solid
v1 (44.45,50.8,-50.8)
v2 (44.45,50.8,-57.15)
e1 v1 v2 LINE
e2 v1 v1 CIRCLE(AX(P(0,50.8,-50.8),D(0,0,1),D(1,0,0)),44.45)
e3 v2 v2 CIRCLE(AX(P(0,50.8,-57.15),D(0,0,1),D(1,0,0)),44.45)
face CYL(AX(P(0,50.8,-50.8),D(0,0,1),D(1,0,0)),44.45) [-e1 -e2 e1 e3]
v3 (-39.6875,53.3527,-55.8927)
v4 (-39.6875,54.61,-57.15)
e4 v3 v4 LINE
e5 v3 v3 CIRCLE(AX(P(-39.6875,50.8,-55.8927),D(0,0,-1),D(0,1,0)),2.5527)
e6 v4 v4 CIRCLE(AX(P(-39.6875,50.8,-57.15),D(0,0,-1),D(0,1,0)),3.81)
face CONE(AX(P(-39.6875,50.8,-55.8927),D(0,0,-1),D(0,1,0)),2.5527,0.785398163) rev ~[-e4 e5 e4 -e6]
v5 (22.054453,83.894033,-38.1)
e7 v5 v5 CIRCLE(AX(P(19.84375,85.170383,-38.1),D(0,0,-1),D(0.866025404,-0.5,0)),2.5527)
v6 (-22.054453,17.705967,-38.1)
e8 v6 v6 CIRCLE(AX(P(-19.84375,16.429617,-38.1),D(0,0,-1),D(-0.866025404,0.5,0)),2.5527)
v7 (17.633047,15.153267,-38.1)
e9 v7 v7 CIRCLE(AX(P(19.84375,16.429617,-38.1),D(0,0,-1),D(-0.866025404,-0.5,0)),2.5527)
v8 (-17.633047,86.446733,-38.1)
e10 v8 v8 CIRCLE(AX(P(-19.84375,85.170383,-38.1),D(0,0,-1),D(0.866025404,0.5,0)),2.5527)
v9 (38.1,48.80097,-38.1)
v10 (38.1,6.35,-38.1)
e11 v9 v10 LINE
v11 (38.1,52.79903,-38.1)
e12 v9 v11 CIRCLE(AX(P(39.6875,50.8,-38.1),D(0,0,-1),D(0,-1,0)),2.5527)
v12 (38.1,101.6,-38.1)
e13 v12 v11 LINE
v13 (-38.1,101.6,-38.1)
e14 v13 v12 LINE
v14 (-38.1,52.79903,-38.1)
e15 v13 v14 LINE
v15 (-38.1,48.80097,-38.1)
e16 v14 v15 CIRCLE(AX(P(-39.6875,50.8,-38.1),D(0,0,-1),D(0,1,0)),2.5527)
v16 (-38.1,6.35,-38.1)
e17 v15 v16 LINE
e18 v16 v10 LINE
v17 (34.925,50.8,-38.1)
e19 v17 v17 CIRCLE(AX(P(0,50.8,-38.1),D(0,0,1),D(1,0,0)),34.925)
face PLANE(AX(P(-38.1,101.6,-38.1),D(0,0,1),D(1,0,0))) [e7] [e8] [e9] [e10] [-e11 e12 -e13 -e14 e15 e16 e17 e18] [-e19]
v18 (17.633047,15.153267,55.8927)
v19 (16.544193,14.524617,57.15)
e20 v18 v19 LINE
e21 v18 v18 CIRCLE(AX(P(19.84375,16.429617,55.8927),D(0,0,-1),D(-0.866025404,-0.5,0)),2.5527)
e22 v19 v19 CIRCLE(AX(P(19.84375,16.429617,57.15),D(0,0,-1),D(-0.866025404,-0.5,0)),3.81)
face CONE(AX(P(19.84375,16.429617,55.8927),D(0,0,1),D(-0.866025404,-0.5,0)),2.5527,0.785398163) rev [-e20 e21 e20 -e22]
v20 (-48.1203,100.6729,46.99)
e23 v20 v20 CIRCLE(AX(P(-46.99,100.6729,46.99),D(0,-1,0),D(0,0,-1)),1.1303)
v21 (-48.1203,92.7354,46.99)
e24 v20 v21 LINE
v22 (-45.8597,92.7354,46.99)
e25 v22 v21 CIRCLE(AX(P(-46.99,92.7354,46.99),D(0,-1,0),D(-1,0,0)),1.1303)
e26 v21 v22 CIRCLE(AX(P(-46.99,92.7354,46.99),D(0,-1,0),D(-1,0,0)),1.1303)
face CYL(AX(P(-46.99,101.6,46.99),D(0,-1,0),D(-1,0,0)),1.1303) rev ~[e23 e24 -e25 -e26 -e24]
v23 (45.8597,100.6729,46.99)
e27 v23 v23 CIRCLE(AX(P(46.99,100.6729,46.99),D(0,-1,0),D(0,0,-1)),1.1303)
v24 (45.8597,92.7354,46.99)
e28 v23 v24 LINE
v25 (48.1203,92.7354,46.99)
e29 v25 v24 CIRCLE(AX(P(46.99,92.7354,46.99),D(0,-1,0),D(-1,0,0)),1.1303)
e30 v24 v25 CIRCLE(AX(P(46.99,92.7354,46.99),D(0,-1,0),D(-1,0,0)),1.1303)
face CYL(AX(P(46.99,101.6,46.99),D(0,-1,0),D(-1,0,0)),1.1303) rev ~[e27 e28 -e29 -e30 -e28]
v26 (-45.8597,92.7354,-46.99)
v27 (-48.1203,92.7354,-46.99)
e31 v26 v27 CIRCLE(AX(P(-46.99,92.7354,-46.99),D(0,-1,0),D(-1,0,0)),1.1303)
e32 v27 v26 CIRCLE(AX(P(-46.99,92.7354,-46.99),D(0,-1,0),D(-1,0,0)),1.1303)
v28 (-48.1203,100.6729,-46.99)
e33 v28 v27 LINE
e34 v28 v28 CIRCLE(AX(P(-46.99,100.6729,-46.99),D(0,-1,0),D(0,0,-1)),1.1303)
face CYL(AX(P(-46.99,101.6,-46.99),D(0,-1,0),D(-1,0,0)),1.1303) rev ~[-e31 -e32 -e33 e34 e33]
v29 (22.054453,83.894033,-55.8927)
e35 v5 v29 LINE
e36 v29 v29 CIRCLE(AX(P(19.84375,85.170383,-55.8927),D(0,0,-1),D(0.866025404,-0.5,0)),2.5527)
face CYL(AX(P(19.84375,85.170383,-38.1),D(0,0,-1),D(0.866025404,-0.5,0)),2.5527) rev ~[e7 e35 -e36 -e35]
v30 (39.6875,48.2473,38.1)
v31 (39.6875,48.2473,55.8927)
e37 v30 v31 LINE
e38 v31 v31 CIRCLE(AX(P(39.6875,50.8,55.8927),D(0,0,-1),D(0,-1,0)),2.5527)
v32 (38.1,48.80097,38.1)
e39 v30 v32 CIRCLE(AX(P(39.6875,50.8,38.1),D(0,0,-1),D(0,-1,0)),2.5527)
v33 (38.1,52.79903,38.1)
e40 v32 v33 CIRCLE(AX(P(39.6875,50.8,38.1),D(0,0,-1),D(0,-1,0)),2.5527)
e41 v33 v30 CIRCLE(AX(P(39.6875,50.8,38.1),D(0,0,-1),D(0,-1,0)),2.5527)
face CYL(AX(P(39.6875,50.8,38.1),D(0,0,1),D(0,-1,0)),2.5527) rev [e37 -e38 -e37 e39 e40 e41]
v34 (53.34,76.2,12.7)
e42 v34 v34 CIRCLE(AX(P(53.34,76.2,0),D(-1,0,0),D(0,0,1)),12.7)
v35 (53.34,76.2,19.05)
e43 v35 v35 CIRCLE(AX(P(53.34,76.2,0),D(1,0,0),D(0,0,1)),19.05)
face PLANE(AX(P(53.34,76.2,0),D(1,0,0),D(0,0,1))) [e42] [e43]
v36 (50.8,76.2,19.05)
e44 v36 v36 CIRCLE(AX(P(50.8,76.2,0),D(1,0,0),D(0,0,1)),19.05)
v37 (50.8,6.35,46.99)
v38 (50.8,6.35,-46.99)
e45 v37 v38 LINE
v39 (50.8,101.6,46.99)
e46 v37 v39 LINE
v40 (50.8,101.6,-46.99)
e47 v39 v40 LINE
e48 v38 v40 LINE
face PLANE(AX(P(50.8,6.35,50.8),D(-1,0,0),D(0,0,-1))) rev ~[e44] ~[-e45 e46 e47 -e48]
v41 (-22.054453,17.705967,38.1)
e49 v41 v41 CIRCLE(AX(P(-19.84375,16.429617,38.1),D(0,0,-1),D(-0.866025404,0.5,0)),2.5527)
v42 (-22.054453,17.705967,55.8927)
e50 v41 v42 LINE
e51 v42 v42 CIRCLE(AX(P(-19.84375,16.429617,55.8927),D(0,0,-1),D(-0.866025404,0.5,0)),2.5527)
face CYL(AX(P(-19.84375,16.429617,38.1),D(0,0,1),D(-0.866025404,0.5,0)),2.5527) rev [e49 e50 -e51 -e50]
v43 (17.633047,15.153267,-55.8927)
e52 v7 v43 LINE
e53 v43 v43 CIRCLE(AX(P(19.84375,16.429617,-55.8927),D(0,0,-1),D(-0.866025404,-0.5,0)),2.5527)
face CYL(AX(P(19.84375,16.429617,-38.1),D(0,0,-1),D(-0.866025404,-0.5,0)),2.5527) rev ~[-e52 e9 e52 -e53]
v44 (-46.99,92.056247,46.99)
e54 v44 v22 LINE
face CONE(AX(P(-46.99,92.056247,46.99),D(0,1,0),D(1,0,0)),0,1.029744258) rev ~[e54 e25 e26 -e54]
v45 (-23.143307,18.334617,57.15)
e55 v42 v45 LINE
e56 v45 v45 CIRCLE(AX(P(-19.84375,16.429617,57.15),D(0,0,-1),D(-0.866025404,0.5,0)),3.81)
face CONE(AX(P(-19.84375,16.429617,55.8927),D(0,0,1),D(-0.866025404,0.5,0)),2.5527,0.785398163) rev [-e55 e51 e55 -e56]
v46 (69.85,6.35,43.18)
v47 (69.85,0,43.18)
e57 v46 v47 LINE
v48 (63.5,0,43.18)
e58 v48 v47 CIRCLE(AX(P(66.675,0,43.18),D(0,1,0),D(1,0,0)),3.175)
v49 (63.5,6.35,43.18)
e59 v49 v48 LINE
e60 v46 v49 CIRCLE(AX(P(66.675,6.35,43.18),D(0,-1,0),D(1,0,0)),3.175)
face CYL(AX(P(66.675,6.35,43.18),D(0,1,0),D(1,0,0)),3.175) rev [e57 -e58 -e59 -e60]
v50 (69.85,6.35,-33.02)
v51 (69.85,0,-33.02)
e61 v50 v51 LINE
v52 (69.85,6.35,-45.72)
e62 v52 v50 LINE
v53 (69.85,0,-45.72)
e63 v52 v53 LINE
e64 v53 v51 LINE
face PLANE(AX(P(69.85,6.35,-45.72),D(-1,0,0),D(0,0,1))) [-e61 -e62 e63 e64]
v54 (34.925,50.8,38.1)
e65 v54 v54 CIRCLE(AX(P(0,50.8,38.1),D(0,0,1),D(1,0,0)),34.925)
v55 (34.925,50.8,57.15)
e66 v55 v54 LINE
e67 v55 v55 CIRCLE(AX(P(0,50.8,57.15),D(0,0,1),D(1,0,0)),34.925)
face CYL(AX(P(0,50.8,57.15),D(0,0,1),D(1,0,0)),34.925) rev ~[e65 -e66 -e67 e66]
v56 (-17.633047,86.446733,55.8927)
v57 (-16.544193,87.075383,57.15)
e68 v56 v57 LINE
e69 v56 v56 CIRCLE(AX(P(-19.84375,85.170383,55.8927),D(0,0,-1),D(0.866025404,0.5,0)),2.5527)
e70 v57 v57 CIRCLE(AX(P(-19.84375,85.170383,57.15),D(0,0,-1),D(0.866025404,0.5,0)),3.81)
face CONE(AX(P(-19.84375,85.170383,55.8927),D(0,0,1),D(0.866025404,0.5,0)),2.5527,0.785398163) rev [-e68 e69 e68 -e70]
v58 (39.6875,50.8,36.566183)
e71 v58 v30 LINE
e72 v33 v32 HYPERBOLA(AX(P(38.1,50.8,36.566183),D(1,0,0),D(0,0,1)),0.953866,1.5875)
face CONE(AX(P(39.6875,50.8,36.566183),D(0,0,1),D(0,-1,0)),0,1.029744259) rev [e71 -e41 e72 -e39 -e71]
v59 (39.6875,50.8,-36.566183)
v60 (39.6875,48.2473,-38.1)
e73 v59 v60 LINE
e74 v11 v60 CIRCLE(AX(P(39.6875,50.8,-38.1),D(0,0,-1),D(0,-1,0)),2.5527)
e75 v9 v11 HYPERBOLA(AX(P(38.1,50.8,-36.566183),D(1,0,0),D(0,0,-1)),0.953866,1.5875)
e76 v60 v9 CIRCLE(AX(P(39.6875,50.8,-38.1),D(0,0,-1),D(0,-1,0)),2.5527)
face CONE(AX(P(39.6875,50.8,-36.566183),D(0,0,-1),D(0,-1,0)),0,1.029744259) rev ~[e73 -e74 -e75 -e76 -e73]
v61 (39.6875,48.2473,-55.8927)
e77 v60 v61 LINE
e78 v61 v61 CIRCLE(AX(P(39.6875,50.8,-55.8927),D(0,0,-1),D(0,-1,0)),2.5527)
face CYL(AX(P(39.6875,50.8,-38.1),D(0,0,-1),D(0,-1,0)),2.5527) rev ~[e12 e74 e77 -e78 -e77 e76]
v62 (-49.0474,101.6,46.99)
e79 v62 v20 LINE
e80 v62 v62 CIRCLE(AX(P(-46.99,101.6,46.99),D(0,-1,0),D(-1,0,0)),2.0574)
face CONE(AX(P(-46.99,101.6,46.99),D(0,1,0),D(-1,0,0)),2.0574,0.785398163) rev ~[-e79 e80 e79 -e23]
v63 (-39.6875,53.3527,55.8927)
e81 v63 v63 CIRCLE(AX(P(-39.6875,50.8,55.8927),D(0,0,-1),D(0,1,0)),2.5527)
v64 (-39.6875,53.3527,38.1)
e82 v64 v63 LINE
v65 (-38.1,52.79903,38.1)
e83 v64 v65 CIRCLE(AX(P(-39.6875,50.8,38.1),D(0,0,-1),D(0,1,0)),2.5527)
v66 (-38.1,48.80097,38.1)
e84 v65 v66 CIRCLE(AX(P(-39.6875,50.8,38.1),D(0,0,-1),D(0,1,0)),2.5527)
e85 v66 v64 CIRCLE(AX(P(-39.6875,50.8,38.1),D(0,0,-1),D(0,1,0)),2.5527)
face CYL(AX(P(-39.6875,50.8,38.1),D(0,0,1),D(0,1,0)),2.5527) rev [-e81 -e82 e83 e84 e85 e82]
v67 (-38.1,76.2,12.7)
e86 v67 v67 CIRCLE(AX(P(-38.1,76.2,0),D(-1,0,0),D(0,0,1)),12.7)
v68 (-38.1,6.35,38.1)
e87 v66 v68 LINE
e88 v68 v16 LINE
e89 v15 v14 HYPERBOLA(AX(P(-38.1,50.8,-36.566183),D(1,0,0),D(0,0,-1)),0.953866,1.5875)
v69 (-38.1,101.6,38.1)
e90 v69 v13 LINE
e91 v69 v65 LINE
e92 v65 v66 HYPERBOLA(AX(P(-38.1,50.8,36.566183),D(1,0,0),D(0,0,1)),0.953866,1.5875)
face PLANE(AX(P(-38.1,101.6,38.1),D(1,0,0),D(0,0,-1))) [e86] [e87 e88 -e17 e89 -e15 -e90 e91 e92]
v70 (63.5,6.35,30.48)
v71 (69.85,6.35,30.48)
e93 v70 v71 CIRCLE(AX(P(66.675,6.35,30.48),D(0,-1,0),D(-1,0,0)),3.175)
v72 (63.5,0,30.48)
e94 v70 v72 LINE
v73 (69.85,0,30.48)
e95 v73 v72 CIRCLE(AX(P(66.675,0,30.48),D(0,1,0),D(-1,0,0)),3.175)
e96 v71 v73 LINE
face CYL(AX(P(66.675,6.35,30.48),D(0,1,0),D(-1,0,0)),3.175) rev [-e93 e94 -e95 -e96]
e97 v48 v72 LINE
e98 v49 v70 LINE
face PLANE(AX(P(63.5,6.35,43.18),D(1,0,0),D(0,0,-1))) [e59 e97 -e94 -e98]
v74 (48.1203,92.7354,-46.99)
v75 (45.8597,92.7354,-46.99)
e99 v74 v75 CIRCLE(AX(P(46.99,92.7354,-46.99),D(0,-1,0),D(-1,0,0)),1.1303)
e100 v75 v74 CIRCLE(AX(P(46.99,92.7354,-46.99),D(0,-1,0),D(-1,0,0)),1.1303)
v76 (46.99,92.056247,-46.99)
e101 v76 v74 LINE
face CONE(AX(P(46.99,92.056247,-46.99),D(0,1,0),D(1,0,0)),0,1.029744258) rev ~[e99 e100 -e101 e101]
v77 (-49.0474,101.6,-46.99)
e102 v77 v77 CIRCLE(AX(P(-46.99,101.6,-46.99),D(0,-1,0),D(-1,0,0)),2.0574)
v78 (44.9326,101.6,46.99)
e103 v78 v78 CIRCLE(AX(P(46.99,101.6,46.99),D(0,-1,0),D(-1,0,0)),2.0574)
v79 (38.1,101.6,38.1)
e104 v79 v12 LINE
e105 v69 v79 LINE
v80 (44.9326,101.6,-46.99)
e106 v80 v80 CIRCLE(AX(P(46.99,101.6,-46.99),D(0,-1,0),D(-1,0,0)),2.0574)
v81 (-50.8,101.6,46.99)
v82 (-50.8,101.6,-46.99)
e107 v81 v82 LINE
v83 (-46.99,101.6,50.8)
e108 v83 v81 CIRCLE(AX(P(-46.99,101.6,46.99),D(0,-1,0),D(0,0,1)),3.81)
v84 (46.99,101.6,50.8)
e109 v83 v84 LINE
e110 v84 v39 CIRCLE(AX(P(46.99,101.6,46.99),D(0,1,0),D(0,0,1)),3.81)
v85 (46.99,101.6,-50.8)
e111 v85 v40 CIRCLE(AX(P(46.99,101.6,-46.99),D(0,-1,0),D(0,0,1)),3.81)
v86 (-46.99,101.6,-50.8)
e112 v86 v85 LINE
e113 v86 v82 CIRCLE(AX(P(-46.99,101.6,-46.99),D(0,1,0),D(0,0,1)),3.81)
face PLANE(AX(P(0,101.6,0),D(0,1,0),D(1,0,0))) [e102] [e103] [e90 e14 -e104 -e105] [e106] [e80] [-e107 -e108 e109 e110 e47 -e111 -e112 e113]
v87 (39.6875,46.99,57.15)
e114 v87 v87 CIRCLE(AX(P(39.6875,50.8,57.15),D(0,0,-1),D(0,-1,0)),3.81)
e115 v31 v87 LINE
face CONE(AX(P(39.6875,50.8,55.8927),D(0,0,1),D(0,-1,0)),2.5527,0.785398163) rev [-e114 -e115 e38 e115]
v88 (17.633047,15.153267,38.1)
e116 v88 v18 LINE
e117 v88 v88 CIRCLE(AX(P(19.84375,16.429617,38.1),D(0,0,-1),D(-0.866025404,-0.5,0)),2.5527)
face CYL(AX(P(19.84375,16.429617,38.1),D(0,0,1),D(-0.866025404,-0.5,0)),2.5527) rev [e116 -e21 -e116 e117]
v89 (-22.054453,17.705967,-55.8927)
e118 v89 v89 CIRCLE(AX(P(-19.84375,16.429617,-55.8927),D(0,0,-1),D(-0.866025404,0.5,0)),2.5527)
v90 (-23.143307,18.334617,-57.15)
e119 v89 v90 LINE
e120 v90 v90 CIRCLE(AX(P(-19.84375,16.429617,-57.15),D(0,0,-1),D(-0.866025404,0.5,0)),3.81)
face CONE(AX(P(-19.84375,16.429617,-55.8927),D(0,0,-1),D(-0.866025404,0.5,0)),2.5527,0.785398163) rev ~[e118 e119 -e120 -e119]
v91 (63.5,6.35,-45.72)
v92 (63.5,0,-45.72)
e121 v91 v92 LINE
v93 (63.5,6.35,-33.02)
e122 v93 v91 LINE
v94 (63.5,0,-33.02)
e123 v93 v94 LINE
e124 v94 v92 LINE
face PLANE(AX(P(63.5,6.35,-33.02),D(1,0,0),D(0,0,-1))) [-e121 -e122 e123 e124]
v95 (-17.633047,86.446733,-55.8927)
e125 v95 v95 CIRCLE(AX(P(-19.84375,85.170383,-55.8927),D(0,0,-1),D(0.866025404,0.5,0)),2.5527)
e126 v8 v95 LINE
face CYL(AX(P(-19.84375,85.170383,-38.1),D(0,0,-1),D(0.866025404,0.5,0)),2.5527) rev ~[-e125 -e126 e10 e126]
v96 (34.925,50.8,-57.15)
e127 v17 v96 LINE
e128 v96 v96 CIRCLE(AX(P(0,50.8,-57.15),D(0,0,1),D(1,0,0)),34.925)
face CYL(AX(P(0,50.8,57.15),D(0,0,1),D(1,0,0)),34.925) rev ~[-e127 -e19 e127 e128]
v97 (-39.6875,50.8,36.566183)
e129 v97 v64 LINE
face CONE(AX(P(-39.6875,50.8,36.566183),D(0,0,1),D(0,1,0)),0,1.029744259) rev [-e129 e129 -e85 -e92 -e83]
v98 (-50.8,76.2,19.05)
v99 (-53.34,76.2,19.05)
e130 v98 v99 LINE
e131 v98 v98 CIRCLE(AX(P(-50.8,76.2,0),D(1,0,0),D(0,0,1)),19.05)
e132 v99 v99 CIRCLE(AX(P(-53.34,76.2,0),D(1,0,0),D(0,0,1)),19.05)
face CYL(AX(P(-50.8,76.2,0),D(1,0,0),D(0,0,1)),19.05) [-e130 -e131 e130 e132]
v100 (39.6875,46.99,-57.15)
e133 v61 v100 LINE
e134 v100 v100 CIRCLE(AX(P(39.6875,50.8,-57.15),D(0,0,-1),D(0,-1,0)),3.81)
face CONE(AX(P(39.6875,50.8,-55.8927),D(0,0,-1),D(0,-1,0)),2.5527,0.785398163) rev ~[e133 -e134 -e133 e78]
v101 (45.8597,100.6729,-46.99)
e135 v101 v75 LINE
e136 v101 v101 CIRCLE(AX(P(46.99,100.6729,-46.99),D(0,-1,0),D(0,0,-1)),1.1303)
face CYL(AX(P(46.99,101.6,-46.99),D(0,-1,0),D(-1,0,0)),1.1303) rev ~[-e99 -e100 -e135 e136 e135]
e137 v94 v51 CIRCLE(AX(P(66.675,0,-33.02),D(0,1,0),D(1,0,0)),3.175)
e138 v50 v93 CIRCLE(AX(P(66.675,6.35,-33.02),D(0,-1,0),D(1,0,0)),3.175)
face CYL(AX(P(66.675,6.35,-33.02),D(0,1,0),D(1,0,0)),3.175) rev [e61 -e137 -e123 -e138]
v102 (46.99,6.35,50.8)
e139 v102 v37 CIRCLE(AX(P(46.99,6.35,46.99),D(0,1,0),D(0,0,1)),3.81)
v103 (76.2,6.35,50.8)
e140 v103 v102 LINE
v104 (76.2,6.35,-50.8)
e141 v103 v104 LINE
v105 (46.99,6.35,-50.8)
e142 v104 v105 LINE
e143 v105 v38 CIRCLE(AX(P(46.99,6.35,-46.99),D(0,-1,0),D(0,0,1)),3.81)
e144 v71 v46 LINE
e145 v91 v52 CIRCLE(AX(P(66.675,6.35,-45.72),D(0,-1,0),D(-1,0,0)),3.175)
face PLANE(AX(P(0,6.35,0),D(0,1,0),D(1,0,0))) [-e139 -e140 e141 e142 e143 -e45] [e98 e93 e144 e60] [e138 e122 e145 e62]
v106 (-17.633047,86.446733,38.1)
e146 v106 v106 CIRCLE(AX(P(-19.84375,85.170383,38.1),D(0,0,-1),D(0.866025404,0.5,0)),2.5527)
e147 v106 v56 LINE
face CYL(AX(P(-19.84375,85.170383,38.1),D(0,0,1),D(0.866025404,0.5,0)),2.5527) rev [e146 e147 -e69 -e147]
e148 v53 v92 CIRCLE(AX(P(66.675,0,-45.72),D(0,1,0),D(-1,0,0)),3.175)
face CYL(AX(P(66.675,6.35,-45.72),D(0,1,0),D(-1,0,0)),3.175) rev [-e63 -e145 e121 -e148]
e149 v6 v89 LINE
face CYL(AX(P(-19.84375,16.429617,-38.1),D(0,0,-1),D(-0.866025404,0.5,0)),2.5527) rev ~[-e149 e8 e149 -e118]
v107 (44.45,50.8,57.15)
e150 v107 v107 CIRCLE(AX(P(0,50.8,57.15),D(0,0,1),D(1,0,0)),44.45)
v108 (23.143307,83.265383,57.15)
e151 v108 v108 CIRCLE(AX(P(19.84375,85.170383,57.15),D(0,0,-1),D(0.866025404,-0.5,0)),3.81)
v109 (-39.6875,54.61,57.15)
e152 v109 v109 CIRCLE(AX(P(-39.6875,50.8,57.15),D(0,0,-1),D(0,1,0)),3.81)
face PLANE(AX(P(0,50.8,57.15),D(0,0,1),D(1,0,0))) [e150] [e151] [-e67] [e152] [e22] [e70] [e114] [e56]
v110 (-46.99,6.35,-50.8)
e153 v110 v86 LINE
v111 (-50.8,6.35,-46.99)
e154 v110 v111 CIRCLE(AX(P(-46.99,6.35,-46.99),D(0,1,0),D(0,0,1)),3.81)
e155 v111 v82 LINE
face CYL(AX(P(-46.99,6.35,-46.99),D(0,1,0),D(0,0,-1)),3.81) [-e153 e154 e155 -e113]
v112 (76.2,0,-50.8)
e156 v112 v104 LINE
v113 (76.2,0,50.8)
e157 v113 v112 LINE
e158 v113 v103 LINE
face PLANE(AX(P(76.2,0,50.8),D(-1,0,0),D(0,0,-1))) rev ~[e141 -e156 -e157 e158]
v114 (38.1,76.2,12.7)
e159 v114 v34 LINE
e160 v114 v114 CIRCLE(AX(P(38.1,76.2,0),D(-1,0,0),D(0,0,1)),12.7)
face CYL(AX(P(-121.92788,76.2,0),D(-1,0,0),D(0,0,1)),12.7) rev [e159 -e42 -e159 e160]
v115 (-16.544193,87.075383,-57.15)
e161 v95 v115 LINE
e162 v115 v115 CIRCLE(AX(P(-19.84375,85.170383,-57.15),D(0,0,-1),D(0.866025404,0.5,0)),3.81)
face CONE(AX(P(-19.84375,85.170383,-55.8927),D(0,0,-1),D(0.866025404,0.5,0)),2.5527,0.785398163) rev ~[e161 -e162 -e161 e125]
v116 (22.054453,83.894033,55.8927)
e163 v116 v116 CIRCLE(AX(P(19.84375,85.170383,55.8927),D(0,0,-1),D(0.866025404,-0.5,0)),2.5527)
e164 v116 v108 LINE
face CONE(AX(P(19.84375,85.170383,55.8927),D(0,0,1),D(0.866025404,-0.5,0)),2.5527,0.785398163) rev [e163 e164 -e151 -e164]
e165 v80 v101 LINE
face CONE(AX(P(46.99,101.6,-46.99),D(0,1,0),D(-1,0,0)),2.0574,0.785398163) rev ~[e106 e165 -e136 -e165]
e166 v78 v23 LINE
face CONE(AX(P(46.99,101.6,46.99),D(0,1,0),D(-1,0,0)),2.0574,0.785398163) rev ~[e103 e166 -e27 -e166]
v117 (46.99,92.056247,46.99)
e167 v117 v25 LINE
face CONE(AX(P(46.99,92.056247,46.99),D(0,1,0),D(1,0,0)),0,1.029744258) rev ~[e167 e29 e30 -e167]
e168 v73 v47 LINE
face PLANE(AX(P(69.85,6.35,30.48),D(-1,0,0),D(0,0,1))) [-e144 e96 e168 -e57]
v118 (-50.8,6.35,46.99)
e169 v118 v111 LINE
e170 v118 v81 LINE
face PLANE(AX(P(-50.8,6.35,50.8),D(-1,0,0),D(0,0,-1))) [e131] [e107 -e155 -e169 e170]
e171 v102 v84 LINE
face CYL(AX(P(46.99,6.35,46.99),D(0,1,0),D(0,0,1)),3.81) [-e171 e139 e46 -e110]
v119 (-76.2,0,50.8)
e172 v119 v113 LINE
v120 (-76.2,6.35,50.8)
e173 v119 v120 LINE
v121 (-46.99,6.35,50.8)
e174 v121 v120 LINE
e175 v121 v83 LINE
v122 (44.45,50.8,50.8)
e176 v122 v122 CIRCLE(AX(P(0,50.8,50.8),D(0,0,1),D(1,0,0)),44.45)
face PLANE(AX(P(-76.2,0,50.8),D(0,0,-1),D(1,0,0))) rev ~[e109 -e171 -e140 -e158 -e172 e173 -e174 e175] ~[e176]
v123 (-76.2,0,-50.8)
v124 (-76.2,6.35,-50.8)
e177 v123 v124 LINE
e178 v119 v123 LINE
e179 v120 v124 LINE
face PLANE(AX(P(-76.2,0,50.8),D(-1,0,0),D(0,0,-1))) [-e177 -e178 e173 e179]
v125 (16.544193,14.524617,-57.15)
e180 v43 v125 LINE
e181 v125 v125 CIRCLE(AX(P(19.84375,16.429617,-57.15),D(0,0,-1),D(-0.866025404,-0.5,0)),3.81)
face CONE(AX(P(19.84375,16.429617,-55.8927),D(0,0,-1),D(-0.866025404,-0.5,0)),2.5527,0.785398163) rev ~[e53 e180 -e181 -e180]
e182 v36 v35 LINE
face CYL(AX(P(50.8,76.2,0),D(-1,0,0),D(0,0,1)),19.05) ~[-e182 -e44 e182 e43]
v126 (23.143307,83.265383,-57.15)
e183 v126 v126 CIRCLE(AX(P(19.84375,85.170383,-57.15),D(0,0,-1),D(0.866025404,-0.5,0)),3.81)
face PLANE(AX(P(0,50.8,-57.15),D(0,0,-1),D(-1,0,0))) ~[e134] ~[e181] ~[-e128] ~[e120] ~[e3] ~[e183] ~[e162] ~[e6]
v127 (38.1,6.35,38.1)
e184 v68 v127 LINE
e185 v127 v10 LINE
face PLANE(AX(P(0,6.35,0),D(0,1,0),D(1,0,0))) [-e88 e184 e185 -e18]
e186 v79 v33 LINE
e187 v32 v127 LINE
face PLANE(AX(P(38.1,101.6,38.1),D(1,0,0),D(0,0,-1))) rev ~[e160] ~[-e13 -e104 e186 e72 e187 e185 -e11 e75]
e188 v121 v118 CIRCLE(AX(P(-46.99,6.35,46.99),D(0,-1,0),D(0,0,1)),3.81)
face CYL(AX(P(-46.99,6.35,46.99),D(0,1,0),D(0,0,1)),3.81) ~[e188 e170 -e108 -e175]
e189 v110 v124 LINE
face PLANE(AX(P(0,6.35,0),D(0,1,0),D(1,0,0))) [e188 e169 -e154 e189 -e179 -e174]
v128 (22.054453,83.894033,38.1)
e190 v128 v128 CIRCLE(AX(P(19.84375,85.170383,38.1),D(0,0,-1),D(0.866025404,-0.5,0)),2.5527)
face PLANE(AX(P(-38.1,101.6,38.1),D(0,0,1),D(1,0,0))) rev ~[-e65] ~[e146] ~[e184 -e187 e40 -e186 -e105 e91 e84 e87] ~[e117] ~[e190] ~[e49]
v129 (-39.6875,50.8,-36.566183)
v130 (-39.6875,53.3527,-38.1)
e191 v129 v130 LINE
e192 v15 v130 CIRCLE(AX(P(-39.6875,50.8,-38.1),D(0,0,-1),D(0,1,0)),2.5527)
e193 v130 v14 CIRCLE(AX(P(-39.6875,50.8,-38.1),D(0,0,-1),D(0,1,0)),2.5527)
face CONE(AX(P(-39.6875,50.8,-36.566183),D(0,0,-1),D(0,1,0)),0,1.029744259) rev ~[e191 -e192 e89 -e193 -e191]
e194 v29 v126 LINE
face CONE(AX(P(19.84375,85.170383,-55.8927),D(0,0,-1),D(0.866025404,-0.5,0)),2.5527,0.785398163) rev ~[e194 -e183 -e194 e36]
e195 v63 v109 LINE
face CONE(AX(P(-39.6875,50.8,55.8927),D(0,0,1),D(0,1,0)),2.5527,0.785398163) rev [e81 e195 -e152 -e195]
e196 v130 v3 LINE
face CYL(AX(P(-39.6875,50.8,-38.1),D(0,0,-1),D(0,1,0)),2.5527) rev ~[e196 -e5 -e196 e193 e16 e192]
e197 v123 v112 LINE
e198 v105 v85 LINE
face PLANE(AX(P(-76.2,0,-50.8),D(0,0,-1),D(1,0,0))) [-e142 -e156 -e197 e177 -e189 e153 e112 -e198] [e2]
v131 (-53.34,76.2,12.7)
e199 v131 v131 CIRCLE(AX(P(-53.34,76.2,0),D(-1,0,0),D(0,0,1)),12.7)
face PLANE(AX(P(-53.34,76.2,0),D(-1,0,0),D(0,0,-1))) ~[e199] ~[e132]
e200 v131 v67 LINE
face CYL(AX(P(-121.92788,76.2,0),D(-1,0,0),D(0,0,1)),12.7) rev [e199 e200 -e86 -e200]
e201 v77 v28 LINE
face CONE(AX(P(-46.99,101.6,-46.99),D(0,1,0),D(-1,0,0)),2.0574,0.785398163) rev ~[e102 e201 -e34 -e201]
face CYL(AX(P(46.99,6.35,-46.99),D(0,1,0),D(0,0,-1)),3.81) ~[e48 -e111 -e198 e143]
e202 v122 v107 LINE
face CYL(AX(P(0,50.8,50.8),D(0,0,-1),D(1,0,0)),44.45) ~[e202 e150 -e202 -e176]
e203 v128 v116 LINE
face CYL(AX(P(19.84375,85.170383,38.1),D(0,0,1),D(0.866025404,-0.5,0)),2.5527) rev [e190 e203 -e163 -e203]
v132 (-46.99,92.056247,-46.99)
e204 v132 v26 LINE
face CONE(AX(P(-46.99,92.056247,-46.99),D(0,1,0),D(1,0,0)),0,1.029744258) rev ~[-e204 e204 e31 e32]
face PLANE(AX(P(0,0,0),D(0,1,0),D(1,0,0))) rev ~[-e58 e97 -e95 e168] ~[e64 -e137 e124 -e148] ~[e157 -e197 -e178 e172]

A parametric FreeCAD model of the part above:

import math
import FreeCAD as App
import Part
import Sketcher

V = App.Vector
Q = App.Units.Quantity


def edges_at(feature, points):
    """Names of the edges that pass closest to the given points."""
    edges = feature.Shape.Edges
    near = lambda p: min(range(len(edges)), key=lambda i: edges[i].distToShape(Part.Vertex(*p))[0])
    return sorted({f"Edge{near(p) + 1}" for p in points})

doc = App.newDocument("Part")
body = doc.addObject("PartDesign::Body", "Body")

# Sketch on XZ plane
sketch1 = body.newObject("Sketcher::SketchObject", "Sketch")
sketch1.AttachmentSupport = (doc.getObject("XZ_Plane"), [""])
sketch1.MapMode = "FlatFace"
sketch1.addGeometry(Part.LineSegment(V(-76.2, -50.8, 0), V(-76.2, 50.8, 0)), False)
sketch1.addGeometry(Part.LineSegment(V(-76.2, 50.8, 0), V(76.2, 50.8, 0)), False)
sketch1.addGeometry(Part.LineSegment(V(76.2, 50.8, 0), V(76.2, -50.8, 0)), False)
sketch1.addGeometry(Part.LineSegment(V(76.2, -50.8, 0), V(-76.2, -50.8, 0)), False)
sketch1.addConstraint(Sketcher.Constraint("Coincident", 0, 2, 1, 1))
sketch1.addConstraint(Sketcher.Constraint("Coincident", 1, 2, 2, 1))
sketch1.addConstraint(Sketcher.Constraint("Coincident", 2, 2, 3, 1))
sketch1.addConstraint(Sketcher.Constraint("Coincident", 3, 2, 0, 1))
sketch1.addConstraint(Sketcher.Constraint("Vertical", 0))
sketch1.addConstraint(Sketcher.Constraint("Horizontal", 1))
sketch1.addConstraint(Sketcher.Constraint("Vertical", 2))
sketch1.addConstraint(Sketcher.Constraint("Horizontal", 3))
sketch1.addConstraint(Sketcher.Constraint("Symmetric", 0, 2, 2, 2, -1, 1))
sketch1.addConstraint(Sketcher.Constraint("DistanceX", 1, 1, 1, 2, Q("6 in")))
sketch1.addConstraint(Sketcher.Constraint("DistanceY", 0, 1, 0, 2, Q("4 in")))
pad1 = body.newObject("PartDesign::Pad", "Pad")
pad1.Profile = sketch1
pad1.Length = Q("0.25 in")
pad1.Reversed = True

# Sketch on XZ plane
sketch2 = body.newObject("Sketcher::SketchObject", "Sketch001")
sketch2.AttachmentSupport = (doc.getObject("XZ_Plane"), [""])
sketch2.MapMode = "FlatFace"
sketch2.AttachmentOffset = App.Placement(V(0, 0, -0.25 * 25.4), App.Rotation())
sketch2.addGeometry(Part.LineSegment(V(-50.8, -50.8, 0), V(-50.8, 50.8, 0)), False)
sketch2.addGeometry(Part.LineSegment(V(-50.8, 50.8, 0), V(50.8, 50.8, 0)), False)
sketch2.addGeometry(Part.LineSegment(V(50.8, 50.8, 0), V(50.8, -50.8, 0)), False)
sketch2.addGeometry(Part.LineSegment(V(50.8, -50.8, 0), V(-50.8, -50.8, 0)), False)
sketch2.addConstraint(Sketcher.Constraint("Coincident", 0, 2, 1, 1))
sketch2.addConstraint(Sketcher.Constraint("Coincident", 1, 2, 2, 1))
sketch2.addConstraint(Sketcher.Constraint("Coincident", 2, 2, 3, 1))
sketch2.addConstraint(Sketcher.Constraint("Coincident", 3, 2, 0, 1))
sketch2.addConstraint(Sketcher.Constraint("Vertical", 0))
sketch2.addConstraint(Sketcher.Constraint("Horizontal", 1))
sketch2.addConstraint(Sketcher.Constraint("Vertical", 2))
sketch2.addConstraint(Sketcher.Constraint("Horizontal", 3))
sketch2.addConstraint(Sketcher.Constraint("Symmetric", 0, 2, 2, 2, -1, 1))
sketch2.addConstraint(Sketcher.Constraint("Equal", 3, 0))
sketch2.addConstraint(Sketcher.Constraint("DistanceX", 1, 1, 1, 2, Q("4 in")))
pad2 = body.newObject("PartDesign::Pad", "Pad001")
pad2.Profile = sketch2
pad2.Length = Q("3.75 in")
pad2.Reversed = True

# Sketch on XZ plane
sketch3 = body.newObject("Sketcher::SketchObject", "Sketch002")
sketch3.AttachmentSupport = (doc.getObject("XZ_Plane"), [""])
sketch3.MapMode = "FlatFace"
sketch3.AttachmentOffset = App.Placement(V(0, 0, -4 * 25.4), App.Rotation())
sketch3.addGeometry(Part.LineSegment(V(-38.1, -38.1, 0), V(-38.1, 38.1, 0)), False)
sketch3.addGeometry(Part.LineSegment(V(-38.1, 38.1, 0), V(38.1, 38.1, 0)), False)
sketch3.addGeometry(Part.LineSegment(V(38.1, 38.1, 0), V(38.1, -38.1, 0)), False)
sketch3.addGeometry(Part.LineSegment(V(38.1, -38.1, 0), V(-38.1, -38.1, 0)), False)
sketch3.addConstraint(Sketcher.Constraint("Coincident", 0, 2, 1, 1))
sketch3.addConstraint(Sketcher.Constraint("Coincident", 1, 2, 2, 1))
sketch3.addConstraint(Sketcher.Constraint("Coincident", 2, 2, 3, 1))
sketch3.addConstraint(Sketcher.Constraint("Coincident", 3, 2, 0, 1))
sketch3.addConstraint(Sketcher.Constraint("Vertical", 0))
sketch3.addConstraint(Sketcher.Constraint("Horizontal", 1))
sketch3.addConstraint(Sketcher.Constraint("Vertical", 2))
sketch3.addConstraint(Sketcher.Constraint("Horizontal", 3))
sketch3.addConstraint(Sketcher.Constraint("Symmetric", 0, 2, 2, 2, -1, 1))
sketch3.addConstraint(Sketcher.Constraint("Equal", 3, 0))
sketch3.addConstraint(Sketcher.Constraint("DistanceX", 1, 1, 1, 2, Q("3 in")))
pocket1 = body.newObject("PartDesign::Pocket", "Pocket")
pocket1.Profile = sketch3
pocket1.Length = Q("3.75 in")
pocket1.Reversed = True

# Sketch on XY plane
sketch4 = body.newObject("Sketcher::SketchObject", "Sketch003")
sketch4.AttachmentSupport = (doc.getObject("XY_Plane"), [""])
sketch4.MapMode = "FlatFace"
sketch4.AttachmentOffset = App.Placement(V(0, 0, 2 * 25.4), App.Rotation())
sketch4.addGeometry(Part.Circle(V(0, 50.8, 0), V(0, 0, 1), 44.45), False)
sketch4.addConstraint(Sketcher.Constraint("PointOnObject", 0, 3, -2))
sketch4.addConstraint(Sketcher.Constraint("Diameter", 0, Q("3.5 in")))
sketch4.addConstraint(Sketcher.Constraint("DistanceY", -1, 1, 0, 3, Q("2 in")))
pad3 = body.newObject("PartDesign::Pad", "Pad002")
pad3.Profile = sketch4
pad3.Length = Q("0.25 in")
doc.recompute()

mirrored = body.newObject("PartDesign::Mirrored", "Mirrored")
mirrored.Originals = [pad3]
mirrored.MirrorPlane = (doc.getObject("XY_Plane"), [""])
body.Tip = mirrored

# Sketch on XY plane
sketch5 = body.newObject("Sketcher::SketchObject", "Sketch004")
sketch5.AttachmentSupport = (doc.getObject("XY_Plane"), [""])
sketch5.MapMode = "FlatFace"
sketch5.AttachmentOffset = App.Placement(V(0, 0, 2.25 * 25.4), App.Rotation())
sketch5.addGeometry(Part.Circle(V(0, 50.8, 0), V(0, 0, 1), 34.925), False)
sketch5.addConstraint(Sketcher.Constraint("PointOnObject", 0, 3, -2))
sketch5.addConstraint(Sketcher.Constraint("Diameter", 0, Q("2.75 in")))
sketch5.addConstraint(Sketcher.Constraint("DistanceY", -1, 1, 0, 3, Q("2 in")))
pocket2 = body.newObject("PartDesign::Pocket", "Pocket001")
pocket2.Profile = sketch5
pocket2.Type = "ThroughAll"

# Sketch on YZ plane
sketch6 = body.newObject("Sketcher::SketchObject", "Sketch005")
sketch6.AttachmentSupport = (doc.getObject("YZ_Plane"), [""])
sketch6.MapMode = "FlatFace"
sketch6.AttachmentOffset = App.Placement(V(0, 0, 1.5625 * 25.4), App.Rotation())
sketch6.addGeometry(Part.LineSegment(V(50.8, 36.566183, 0), V(50.8, 57.15, 0)), False)
sketch6.addGeometry(Part.LineSegment(V(50.8, 57.15, 0), V(46.99, 57.15, 0)), False)
sketch6.addGeometry(Part.LineSegment(V(46.99, 57.15, 0), V(48.2473, 55.8927, 0)), False)
sketch6.addGeometry(Part.LineSegment(V(48.2473, 55.8927, 0), V(48.2473, 38.1, 0)), False)
sketch6.addGeometry(Part.LineSegment(V(48.2473, 38.1, 0), V(50.8, 36.566183, 0)), False)
sketch6.addGeometry(Part.LineSegment(V(50.8, 57.15, 0), V(50.8, 36.566183, 0)), True)  # axis
sketch6.addConstraint(Sketcher.Constraint("Coincident", 0, 2, 1, 1))
sketch6.addConstraint(Sketcher.Constraint("Coincident", 1, 2, 2, 1))
sketch6.addConstraint(Sketcher.Constraint("Coincident", 2, 2, 3, 1))
sketch6.addConstraint(Sketcher.Constraint("Coincident", 3, 2, 4, 1))
sketch6.addConstraint(Sketcher.Constraint("Coincident", 4, 2, 0, 1))
sketch6.addConstraint(Sketcher.Constraint("Vertical", 0))
sketch6.addConstraint(Sketcher.Constraint("Horizontal", 1))
sketch6.addConstraint(Sketcher.Constraint("Vertical", 3))
sketch6.addConstraint(Sketcher.Constraint("Vertical", 5))
sketch6.addConstraint(Sketcher.Constraint("Coincident", 5, 1, 0, 2))
sketch6.addConstraint(Sketcher.Constraint("Equal", 0, 5))
sketch6.addConstraint(Sketcher.Constraint("DistanceX", -1, 1, 0, 2, Q("2 in")))
sketch6.addConstraint(Sketcher.Constraint("Angle", 2, Q("-45 deg")))
sketch6.addConstraint(Sketcher.Constraint("Angle", 4, Q("-31 deg")))
sketch6.addConstraint(Sketcher.Constraint("DistanceX", 1, 2, 1, 1, Q("0.15 in")))
sketch6.addConstraint(Sketcher.Constraint("DistanceY", -1, 1, 3, 2, Q("1.5 in")))
sketch6.addConstraint(Sketcher.Constraint("DistanceY", -1, 1, 0, 2, Q("2.25 in")))
sketch6.addConstraint(Sketcher.Constraint("DistanceY", 3, 2, 3, 1, Q("0.7005 in")))
groove = body.newObject("PartDesign::Groove", "Groove")
groove.Profile = sketch6
groove.ReferenceAxis = (sketch6, ["Axis0"])
groove.Angle = 360
doc.recompute()

datumline = body.newObject("PartDesign::Line", "DatumLine")
datumline.Placement = App.Placement(V(0, 50.8, 0), App.Rotation(V(0, 0, 1), V(0, 0, 1)))
polarpattern = body.newObject("PartDesign::PolarPattern", "PolarPattern")
polarpattern.Originals = [groove]
polarpattern.Axis = (datumline, [""])
polarpattern.Angle = 360
polarpattern.Occurrences = 6
body.Tip = polarpattern
doc.recompute()

fillet = body.newObject("PartDesign::Fillet", "Fillet")
fillet.Base = (polarpattern, edges_at(polarpattern, [
    (50.8, 53.975, 50.8),
    (50.8, 53.975, -50.8),
    (-50.8, 53.975, -50.8),
    (-50.8, 53.975, 50.8),
]))
fillet.Radius = Q("0.15 in")

# Sketch on XZ plane
sketch7 = body.newObject("Sketcher::SketchObject", "Sketch006")
sketch7.AttachmentSupport = (doc.getObject("XZ_Plane"), [""])
sketch7.MapMode = "FlatFace"
sketch7.AttachmentOffset = App.Placement(V(0, 0, -4 * 25.4), App.Rotation())
sketch7.addGeometry(Part.Circle(V(-46.99, -46.99, 0), V(0, 0, 1), 1.1303), False)
sketch7.addGeometry(Part.Circle(V(46.99, -46.99, 0), V(0, 0, 1), 1.1303), False)
sketch7.addGeometry(Part.Circle(V(46.99, 46.99, 0), V(0, 0, 1), 1.1303), False)
sketch7.addGeometry(Part.Circle(V(-46.99, 46.99, 0), V(0, 0, 1), 1.1303), False)
sketch7.addConstraint(Sketcher.Constraint("Equal", 0, 1))
sketch7.addConstraint(Sketcher.Constraint("Equal", 1, 2))
sketch7.addConstraint(Sketcher.Constraint("Equal", 2, 3))
sketch7.addConstraint(Sketcher.Constraint("Symmetric", 0, 3, 2, 3, -1, 1))
sketch7.addConstraint(Sketcher.Constraint("Symmetric", 1, 3, 3, 3, -1, 1))
sketch7.addConstraint(Sketcher.Constraint("Symmetric", 0, 3, 1, 3, -2))
sketch7.addConstraint(Sketcher.Constraint("Diameter", 0, Q("0.089 in")))
sketch7.addConstraint(Sketcher.Constraint("DistanceX", 0, 3, 1, 3, Q("3.7 in")))
sketch7.addConstraint(Sketcher.Constraint("DistanceY", 1, 3, 2, 3, Q("3.7 in")))
doc.recompute()
hole = body.newObject("PartDesign::Hole", "Hole")
hole.Profile = sketch7
hole.ThreadType = "None"
hole.Diameter = Q("0.089 in")
hole.DepthType = "Dimension"
hole.Depth = Q("0.349 in")
hole.DrillPoint = "Angled"
hole.DrillPointAngle = 118
hole.HoleCutType = "Countersink"
hole.HoleCutDiameter = Q("0.162 in")
hole.HoleCutCountersinkAngle = 90
hole.Reversed = True

# Sketch on YZ plane
sketch8 = body.newObject("Sketcher::SketchObject", "Sketch007")
sketch8.AttachmentSupport = (doc.getObject("YZ_Plane"), [""])
sketch8.MapMode = "FlatFace"
sketch8.AttachmentOffset = App.Placement(V(0, 0, 2 * 25.4), App.Rotation())
sketch8.addGeometry(Part.Circle(V(76.2, 0, 0), V(0, 0, 1), 19.05), False)
sketch8.addConstraint(Sketcher.Constraint("PointOnObject", 0, 3, -1))
sketch8.addConstraint(Sketcher.Constraint("Diameter", 0, Q("1.5 in")))
sketch8.addConstraint(Sketcher.Constraint("DistanceX", -1, 1, 0, 3, Q("3 in")))
pad4 = body.newObject("PartDesign::Pad", "Pad003")
pad4.Profile = sketch8
pad4.Length = Q("0.1 in")
doc.recompute()

mirrored2 = body.newObject("PartDesign::Mirrored", "Mirrored001")
mirrored2.Originals = [pad4]
mirrored2.MirrorPlane = (doc.getObject("YZ_Plane"), [""])
body.Tip = mirrored2

# Sketch on YZ plane
sketch9 = body.newObject("Sketcher::SketchObject", "Sketch008")
sketch9.AttachmentSupport = (doc.getObject("YZ_Plane"), [""])
sketch9.MapMode = "FlatFace"
sketch9.AttachmentOffset = App.Placement(V(0, 0, 2.1 * 25.4), App.Rotation())
sketch9.addGeometry(Part.Circle(V(76.2, 0, 0), V(0, 0, 1), 12.7), False)
sketch9.addConstraint(Sketcher.Constraint("PointOnObject", 0, 3, -1))
sketch9.addConstraint(Sketcher.Constraint("Diameter", 0, Q("1 in")))
sketch9.addConstraint(Sketcher.Constraint("DistanceX", -1, 1, 0, 3, Q("3 in")))
pocket3 = body.newObject("PartDesign::Pocket", "Pocket002")
pocket3.Profile = sketch9
pocket3.Type = "ThroughAll"
pocket3.Midplane = True
doc.recompute()

mirrored3 = body.newObject("PartDesign::Mirrored", "Mirrored002")
mirrored3.Originals = [groove]
mirrored3.MirrorPlane = (doc.getObject("XY_Plane"), [""])
body.Tip = mirrored3

# Sketch on an angled plane
sketch10 = body.newObject("Sketcher::SketchObject", "Sketch009")
sketch10.Placement = App.Placement(V(19.84375, 85.170383, -57.15), App.Rotation(V(0.866025404, -0.5, 0), V(0, 0, -1), V(0.5, 0.866025404, 0), "ZXY"))
sketch10.addGeometry(Part.LineSegment(V(0, 0, 0), V(0, -20.583817, 0)), False)
sketch10.addGeometry(Part.LineSegment(V(0, -20.583817, 0), V(2.5527, -19.05, 0)), False)
sketch10.addGeometry(Part.LineSegment(V(2.5527, -19.05, 0), V(2.5527, -1.2573, 0)), False)
sketch10.addGeometry(Part.LineSegment(V(2.5527, -1.2573, 0), V(3.81, 0, 0)), False)
sketch10.addGeometry(Part.LineSegment(V(3.81, 0, 0), V(0, 0, 0)), False)
sketch10.addConstraint(Sketcher.Constraint("Coincident", 0, 2, 1, 1))
sketch10.addConstraint(Sketcher.Constraint("Coincident", 1, 2, 2, 1))
sketch10.addConstraint(Sketcher.Constraint("Coincident", 2, 2, 3, 1))
sketch10.addConstraint(Sketcher.Constraint("Coincident", 3, 2, 4, 1))
sketch10.addConstraint(Sketcher.Constraint("Coincident", 4, 2, 0, 1))
sketch10.addConstraint(Sketcher.Constraint("Vertical", 0))
sketch10.addConstraint(Sketcher.Constraint("Vertical", 2))
sketch10.addConstraint(Sketcher.Constraint("Horizontal", 4))
sketch10.addConstraint(Sketcher.Constraint("Coincident", 4, 2, -1, 1))
sketch10.addConstraint(Sketcher.Constraint("Angle", 1, Q("31 deg")))
sketch10.addConstraint(Sketcher.Constraint("Angle", 3, Q("45 deg")))
sketch10.addConstraint(Sketcher.Constraint("DistanceX", 4, 2, 4, 1, Q("0.15 in")))
sketch10.addConstraint(Sketcher.Constraint("DistanceY", 1, 2, -1, 1, Q("0.75 in")))
sketch10.addConstraint(Sketcher.Constraint("DistanceY", 2, 1, 2, 2, Q("0.7005 in")))
groove2 = body.newObject("PartDesign::Groove", "Groove001")
groove2.Profile = sketch10
groove2.ReferenceAxis = (sketch10, ["V_Axis"])
groove2.Angle = 360

# Sketch on an angled plane
sketch11 = body.newObject("Sketcher::SketchObject", "Sketch010")
sketch11.Placement = App.Placement(V(-19.84375, 85.170383, -57.15), App.Rotation(V(0.866025404, 0.5, 0), V(0, 0, -1), V(-0.5, 0.866025404, 0), "ZXY"))
sketch11.addGeometry(Part.LineSegment(V(0, 0, 0), V(0, -20.583817, 0)), False)
sketch11.addGeometry(Part.LineSegment(V(0, -20.583817, 0), V(2.5527, -19.05, 0)), False)
sketch11.addGeometry(Part.LineSegment(V(2.5527, -19.05, 0), V(2.5527, -1.2573, 0)), False)
sketch11.addGeometry(Part.LineSegment(V(2.5527, -1.2573, 0), V(3.81, 0, 0)), False)
sketch11.addGeometry(Part.LineSegment(V(3.81, 0, 0), V(0, 0, 0)), False)
sketch11.addConstraint(Sketcher.Constraint("Coincident", 0, 2, 1, 1))
sketch11.addConstraint(Sketcher.Constraint("Coincident", 1, 2, 2, 1))
sketch11.addConstraint(Sketcher.Constraint("Coincident", 2, 2, 3, 1))
sketch11.addConstraint(Sketcher.Constraint("Coincident", 3, 2, 4, 1))
sketch11.addConstraint(Sketcher.Constraint("Coincident", 4, 2, 0, 1))
sketch11.addConstraint(Sketcher.Constraint("Vertical", 0))
sketch11.addConstraint(Sketcher.Constraint("Vertical", 2))
sketch11.addConstraint(Sketcher.Constraint("Horizontal", 4))
sketch11.addConstraint(Sketcher.Constraint("Coincident", 4, 2, -1, 1))
sketch11.addConstraint(Sketcher.Constraint("Angle", 1, Q("31 deg")))
sketch11.addConstraint(Sketcher.Constraint("Angle", 3, Q("45 deg")))
sketch11.addConstraint(Sketcher.Constraint("DistanceX", 4, 2, 4, 1, Q("0.15 in")))
sketch11.addConstraint(Sketcher.Constraint("DistanceY", 1, 2, -1, 1, Q("0.75 in")))
sketch11.addConstraint(Sketcher.Constraint("DistanceY", 2, 1, 2, 2, Q("0.7005 in")))
groove3 = body.newObject("PartDesign::Groove", "Groove002")
groove3.Profile = sketch11
groove3.ReferenceAxis = (sketch11, ["V_Axis"])
groove3.Angle = 360

# Sketch on YZ plane
sketch12 = body.newObject("Sketcher::SketchObject", "Sketch011")
sketch12.AttachmentSupport = (doc.getObject("YZ_Plane"), [""])
sketch12.MapMode = "FlatFace"
sketch12.AttachmentOffset = App.Placement(V(0, 0, -1.5625 * 25.4), App.Rotation())
sketch12.addGeometry(Part.LineSegment(V(50.8, -57.15, 0), V(50.8, -36.566183, 0)), False)
sketch12.addGeometry(Part.LineSegment(V(50.8, -36.566183, 0), V(53.3527, -38.1, 0)), False)
sketch12.addGeometry(Part.LineSegment(V(53.3527, -38.1, 0), V(53.3527, -55.8927, 0)), False)
sketch12.addGeometry(Part.LineSegment(V(53.3527, -55.8927, 0), V(54.61, -57.15, 0)), False)
sketch12.addGeometry(Part.LineSegment(V(54.61, -57.15, 0), V(50.8, -57.15, 0)), False)
sketch12.addGeometry(Part.LineSegment(V(50.8, -36.566183, 0), V(50.8, -57.15, 0)), True)  # axis
sketch12.addConstraint(Sketcher.Constraint("Coincident", 0, 2, 1, 1))
sketch12.addConstraint(Sketcher.Constraint("Coincident", 1, 2, 2, 1))
sketch12.addConstraint(Sketcher.Constraint("Coincident", 2, 2, 3, 1))
sketch12.addConstraint(Sketcher.Constraint("Coincident", 3, 2, 4, 1))
sketch12.addConstraint(Sketcher.Constraint("Coincident", 4, 2, 0, 1))
sketch12.addConstraint(Sketcher.Constraint("Vertical", 0))
sketch12.addConstraint(Sketcher.Constraint("Vertical", 2))
sketch12.addConstraint(Sketcher.Constraint("Horizontal", 4))
sketch12.addConstraint(Sketcher.Constraint("Vertical", 5))
sketch12.addConstraint(Sketcher.Constraint("Coincident", 5, 1, 0, 2))
sketch12.addConstraint(Sketcher.Constraint("Horizontal", 3, 2, 5, 2))
sketch12.addConstraint(Sketcher.Constraint("DistanceX", -1, 1, 0, 2, Q("2 in")))
sketch12.addConstraint(Sketcher.Constraint("Angle", 1, Q("-31 deg")))
sketch12.addConstraint(Sketcher.Constraint("Angle", 3, Q("-45 deg")))
sketch12.addConstraint(Sketcher.Constraint("DistanceX", 4, 2, 4, 1, Q("0.15 in")))
sketch12.addConstraint(Sketcher.Constraint("DistanceY", 1, 2, -1, 1, Q("1.5 in")))
sketch12.addConstraint(Sketcher.Constraint("DistanceY", 3, 2, -1, 1, Q("2.25 in")))
sketch12.addConstraint(Sketcher.Constraint("DistanceY", 2, 2, 2, 1, Q("0.7005 in")))
groove4 = body.newObject("PartDesign::Groove", "Groove003")
groove4.Profile = sketch12
groove4.ReferenceAxis = (sketch12, ["Axis0"])
groove4.Angle = 360

# Sketch on an angled plane
sketch13 = body.newObject("Sketcher::SketchObject", "Sketch012")
sketch13.Placement = App.Placement(V(-19.84375, 16.429617, -57.15), App.Rotation(V(-0.866025404, 0.5, 0), V(0, 0, -1), V(-0.5, -0.866025404, 0), "ZXY"))
sketch13.addGeometry(Part.LineSegment(V(0, 0, 0), V(0, -20.583817, 0)), False)
sketch13.addGeometry(Part.LineSegment(V(0, -20.583817, 0), V(2.5527, -19.05, 0)), False)
sketch13.addGeometry(Part.LineSegment(V(2.5527, -19.05, 0), V(2.5527, -1.2573, 0)), False)
sketch13.addGeometry(Part.LineSegment(V(2.5527, -1.2573, 0), V(3.81, 0, 0)), False)
sketch13.addGeometry(Part.LineSegment(V(3.81, 0, 0), V(0, 0, 0)), False)
sketch13.addConstraint(Sketcher.Constraint("Coincident", 0, 2, 1, 1))
sketch13.addConstraint(Sketcher.Constraint("Coincident", 1, 2, 2, 1))
sketch13.addConstraint(Sketcher.Constraint("Coincident", 2, 2, 3, 1))
sketch13.addConstraint(Sketcher.Constraint("Coincident", 3, 2, 4, 1))
sketch13.addConstraint(Sketcher.Constraint("Coincident", 4, 2, 0, 1))
sketch13.addConstraint(Sketcher.Constraint("Vertical", 0))
sketch13.addConstraint(Sketcher.Constraint("Vertical", 2))
sketch13.addConstraint(Sketcher.Constraint("Horizontal", 4))
sketch13.addConstraint(Sketcher.Constraint("Coincident", 4, 2, -1, 1))
sketch13.addConstraint(Sketcher.Constraint("Angle", 1, Q("31 deg")))
sketch13.addConstraint(Sketcher.Constraint("Angle", 3, Q("45 deg")))
sketch13.addConstraint(Sketcher.Constraint("DistanceX", 4, 2, 4, 1, Q("0.15 in")))
sketch13.addConstraint(Sketcher.Constraint("DistanceY", 1, 2, -1, 1, Q("0.75 in")))
sketch13.addConstraint(Sketcher.Constraint("DistanceY", 2, 1, 2, 2, Q("0.7005 in")))
groove5 = body.newObject("PartDesign::Groove", "Groove004")
groove5.Profile = sketch13
groove5.ReferenceAxis = (sketch13, ["V_Axis"])
groove5.Angle = 360

# Sketch on an angled plane
sketch14 = body.newObject("Sketcher::SketchObject", "Sketch013")
sketch14.Placement = App.Placement(V(19.84375, 16.429617, -57.15), App.Rotation(V(-0.866025404, -0.5, 0), V(0, 0, -1), V(0.5, -0.866025404, 0), "ZXY"))
sketch14.addGeometry(Part.LineSegment(V(0, 0, 0), V(0, -20.583817, 0)), False)
sketch14.addGeometry(Part.LineSegment(V(0, -20.583817, 0), V(2.5527, -19.05, 0)), False)
sketch14.addGeometry(Part.LineSegment(V(2.5527, -19.05, 0), V(2.5527, -1.2573, 0)), False)
sketch14.addGeometry(Part.LineSegment(V(2.5527, -1.2573, 0), V(3.81, 0, 0)), False)
sketch14.addGeometry(Part.LineSegment(V(3.81, 0, 0), V(0, 0, 0)), False)
sketch14.addConstraint(Sketcher.Constraint("Coincident", 0, 2, 1, 1))
sketch14.addConstraint(Sketcher.Constraint("Coincident", 1, 2, 2, 1))
sketch14.addConstraint(Sketcher.Constraint("Coincident", 2, 2, 3, 1))
sketch14.addConstraint(Sketcher.Constraint("Coincident", 3, 2, 4, 1))
sketch14.addConstraint(Sketcher.Constraint("Coincident", 4, 2, 0, 1))
sketch14.addConstraint(Sketcher.Constraint("Vertical", 0))
sketch14.addConstraint(Sketcher.Constraint("Vertical", 2))
sketch14.addConstraint(Sketcher.Constraint("Horizontal", 4))
sketch14.addConstraint(Sketcher.Constraint("Coincident", 4, 2, -1, 1))
sketch14.addConstraint(Sketcher.Constraint("Angle", 1, Q("31 deg")))
sketch14.addConstraint(Sketcher.Constraint("Angle", 3, Q("45 deg")))
sketch14.addConstraint(Sketcher.Constraint("DistanceX", 4, 2, 4, 1, Q("0.15 in")))
sketch14.addConstraint(Sketcher.Constraint("DistanceY", 1, 2, -1, 1, Q("0.75 in")))
sketch14.addConstraint(Sketcher.Constraint("DistanceY", 2, 1, 2, 2, Q("0.7005 in")))
groove6 = body.newObject("PartDesign::Groove", "Groove005")
groove6.Profile = sketch14
groove6.ReferenceAxis = (sketch14, ["V_Axis"])
groove6.Angle = 360

# Sketch on XZ plane
sketch15 = body.newObject("Sketcher::SketchObject", "Sketch014")
sketch15.AttachmentSupport = (doc.getObject("XZ_Plane"), [""])
sketch15.MapMode = "FlatFace"
sketch15.AttachmentOffset = App.Placement(V(0, 0, -0.25 * 25.4), App.Rotation())
sketch15.addGeometry(Part.LineSegment(V(69.85, 43.18, 0), V(69.85, 30.48, 0)), False)
sketch15.addGeometry(Part.ArcOfCircle(Part.Circle(V(66.675, 30.48, 0), V(0, 0, 1), 3.175), math.radians(180), math.radians(360)), False)
sketch15.addGeometry(Part.LineSegment(V(63.5, 30.48, 0), V(63.5, 43.18, 0)), False)
sketch15.addGeometry(Part.ArcOfCircle(Part.Circle(V(66.675, 43.18, 0), V(0, 0, 1), 3.175), math.radians(0), math.radians(180)), False)
sketch15.addConstraint(Sketcher.Constraint("Tangent", 0, 2, 1, 2))
sketch15.addConstraint(Sketcher.Constraint("Tangent", 1, 1, 2, 1))
sketch15.addConstraint(Sketcher.Constraint("Tangent", 2, 2, 3, 2))
sketch15.addConstraint(Sketcher.Constraint("Tangent", 3, 1, 0, 1))
sketch15.addConstraint(Sketcher.Constraint("Vertical", 0))
sketch15.addConstraint(Sketcher.Constraint("Vertical", 2))
sketch15.addConstraint(Sketcher.Constraint("DistanceY", 0, 2, 0, 1, Q("0.5 in")))
sketch15.addConstraint(Sketcher.Constraint("Radius", 1, Q("0.125 in")))
sketch15.addConstraint(Sketcher.Constraint("DistanceY", -1, 1, 1, 3, Q("1.2 in")))
sketch15.addConstraint(Sketcher.Constraint("DistanceX", -1, 1, 1, 1, Q("2.5 in")))
pocket4 = body.newObject("PartDesign::Pocket", "Pocket003")
pocket4.Profile = sketch15
pocket4.Type = "ThroughAll"
pocket4.Reversed = True
doc.recompute()

linearpattern = body.newObject("PartDesign::LinearPattern", "LinearPattern")
linearpattern.Originals = [pocket4]
linearpattern.Direction = (doc.getObject("Z_Axis"), [""])
linearpattern.Mode = "offset"
linearpattern.Offset = Q("3 in")
linearpattern.Occurrences = 2
linearpattern.Reversed = True
body.Tip = linearpattern

doc.recompute()
